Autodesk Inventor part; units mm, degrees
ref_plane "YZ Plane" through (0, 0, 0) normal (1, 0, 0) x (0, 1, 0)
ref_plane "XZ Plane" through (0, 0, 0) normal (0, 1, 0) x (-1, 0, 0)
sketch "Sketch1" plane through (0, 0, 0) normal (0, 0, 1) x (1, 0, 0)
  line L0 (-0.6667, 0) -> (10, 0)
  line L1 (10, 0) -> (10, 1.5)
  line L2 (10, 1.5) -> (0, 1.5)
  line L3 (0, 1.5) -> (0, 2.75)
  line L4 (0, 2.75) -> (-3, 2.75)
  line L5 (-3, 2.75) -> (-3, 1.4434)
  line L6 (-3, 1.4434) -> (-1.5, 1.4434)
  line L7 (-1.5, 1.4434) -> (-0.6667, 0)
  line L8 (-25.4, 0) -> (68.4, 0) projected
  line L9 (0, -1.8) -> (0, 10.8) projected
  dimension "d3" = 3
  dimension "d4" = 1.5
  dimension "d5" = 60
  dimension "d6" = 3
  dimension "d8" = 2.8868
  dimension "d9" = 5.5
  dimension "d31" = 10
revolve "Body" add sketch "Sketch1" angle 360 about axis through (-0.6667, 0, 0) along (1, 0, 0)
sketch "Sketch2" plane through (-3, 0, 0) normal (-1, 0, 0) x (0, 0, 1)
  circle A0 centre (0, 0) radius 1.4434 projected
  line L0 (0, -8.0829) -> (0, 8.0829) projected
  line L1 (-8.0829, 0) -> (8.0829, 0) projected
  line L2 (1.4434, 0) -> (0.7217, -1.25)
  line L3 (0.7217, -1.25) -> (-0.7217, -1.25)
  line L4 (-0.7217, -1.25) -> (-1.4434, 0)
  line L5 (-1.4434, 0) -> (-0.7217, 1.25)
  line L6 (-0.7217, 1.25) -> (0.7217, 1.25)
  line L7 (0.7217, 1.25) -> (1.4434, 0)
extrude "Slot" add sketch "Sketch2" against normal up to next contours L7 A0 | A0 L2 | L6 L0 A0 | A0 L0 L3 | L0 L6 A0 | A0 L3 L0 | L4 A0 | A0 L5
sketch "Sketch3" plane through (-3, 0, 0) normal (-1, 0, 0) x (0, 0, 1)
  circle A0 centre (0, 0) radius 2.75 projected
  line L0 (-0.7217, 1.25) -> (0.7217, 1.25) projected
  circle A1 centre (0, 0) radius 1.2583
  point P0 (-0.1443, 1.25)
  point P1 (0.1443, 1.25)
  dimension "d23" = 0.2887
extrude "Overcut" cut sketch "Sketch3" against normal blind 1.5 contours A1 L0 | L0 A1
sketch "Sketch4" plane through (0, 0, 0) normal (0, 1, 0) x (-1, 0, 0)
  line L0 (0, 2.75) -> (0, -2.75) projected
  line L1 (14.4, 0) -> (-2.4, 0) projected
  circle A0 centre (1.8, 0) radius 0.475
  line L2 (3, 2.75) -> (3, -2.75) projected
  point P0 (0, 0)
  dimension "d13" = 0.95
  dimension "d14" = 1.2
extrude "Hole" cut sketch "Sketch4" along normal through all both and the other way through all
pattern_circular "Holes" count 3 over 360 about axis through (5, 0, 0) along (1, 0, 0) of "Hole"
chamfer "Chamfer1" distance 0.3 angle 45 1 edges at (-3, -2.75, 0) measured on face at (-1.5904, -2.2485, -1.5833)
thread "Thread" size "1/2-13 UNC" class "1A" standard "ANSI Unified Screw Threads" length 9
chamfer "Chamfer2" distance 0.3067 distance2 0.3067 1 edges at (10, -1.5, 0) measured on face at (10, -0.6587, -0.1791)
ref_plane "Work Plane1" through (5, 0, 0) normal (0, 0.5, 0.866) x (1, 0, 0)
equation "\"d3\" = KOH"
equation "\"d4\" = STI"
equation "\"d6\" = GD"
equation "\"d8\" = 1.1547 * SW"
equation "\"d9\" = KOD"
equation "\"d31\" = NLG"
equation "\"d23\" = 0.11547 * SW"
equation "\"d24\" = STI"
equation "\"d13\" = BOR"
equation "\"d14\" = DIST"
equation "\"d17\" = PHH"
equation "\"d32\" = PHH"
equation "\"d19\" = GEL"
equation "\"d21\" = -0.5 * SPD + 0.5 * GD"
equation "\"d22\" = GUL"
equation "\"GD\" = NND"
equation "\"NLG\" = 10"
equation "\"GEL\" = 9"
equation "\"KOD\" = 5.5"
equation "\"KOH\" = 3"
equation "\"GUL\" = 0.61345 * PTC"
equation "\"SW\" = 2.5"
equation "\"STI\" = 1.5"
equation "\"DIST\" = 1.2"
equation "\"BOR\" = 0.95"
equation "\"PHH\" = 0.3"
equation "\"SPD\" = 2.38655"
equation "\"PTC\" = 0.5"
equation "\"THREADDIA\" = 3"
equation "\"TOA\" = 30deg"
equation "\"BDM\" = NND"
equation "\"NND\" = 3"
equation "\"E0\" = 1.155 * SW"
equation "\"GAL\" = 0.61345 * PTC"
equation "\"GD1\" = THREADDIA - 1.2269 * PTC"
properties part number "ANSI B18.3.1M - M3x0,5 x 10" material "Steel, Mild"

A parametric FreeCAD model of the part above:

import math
import FreeCAD as App
import Part
import Sketcher
Q = App.Units.Quantity


def edges_at(feature, points):
    """Names of the edges that pass closest to the given points."""
    edges = feature.Shape.Edges
    near = lambda p: min(range(len(edges)), key=lambda i: edges[i].distToShape(Part.Vertex(*p))[0])
    return sorted({f"Edge{near(p) + 1}" for p in points})


def add_polygon(sketch, points):
    """Adds a closed chain of lines whose ends are joined by coincident constraints."""
    first, n = sketch.GeometryCount, len(points)
    for a, b in zip(points, points[1:] + points[:1]):
        sketch.addGeometry(Part.LineSegment(App.Vector(*a, 0), App.Vector(*b, 0)), False)
    for i in range(n):
        sketch.addConstraint(Sketcher.Constraint("Coincident", first + i, 2, first + (i + 1) % n, 1))

doc = App.newDocument("Part")
body = doc.addObject("PartDesign::Body", "Body")

sketch1 = doc.addObject("Sketcher::SketchObject", "Sketch")
body.addObject(sketch1)
sketch1.AttachmentSupport = (doc.XY_Plane, [""])
sketch1.MapMode = "FlatFace"
add_polygon(sketch1, [(-1.5, 1.4434), (-0.6667, 0), (10, 0), (10, 1.5), (0, 1.5), (0, 2.75), (-3, 2.75), (-3, 1.4434)])
sketch1.addConstraint([
    Sketcher.Constraint("Horizontal", 1),
    Sketcher.Constraint("Vertical", 2),
    Sketcher.Constraint("Horizontal", 3),
    Sketcher.Constraint("Vertical", 4),
    Sketcher.Constraint("Horizontal", 5),
    Sketcher.Constraint("Vertical", 6),
    Sketcher.Constraint("Horizontal", 7),
    Sketcher.Constraint("PointOnObject", 0, 2, -1),
    Sketcher.Constraint("PointOnObject", 3, 2, -2),
    Sketcher.Constraint("Equal", 7, 2),
    Sketcher.Constraint("DistanceX", 3, 2, 3, 1, Q("10 mm")),
    Sketcher.Constraint("DistanceX", 5, 2, 5, 1, Q("3 mm")),
    Sketcher.Constraint("DistanceX", 7, 1, 7, 2, Q("1.5 mm")),
    Sketcher.Constraint("DistanceY", 4, 1, 4, 2, Q("1.25 mm")),
    Sketcher.Constraint("DistanceX", 1, 1, 1, 2, Q("10.6667 mm")),
    Sketcher.Constraint("DistanceY", 6, 2, 6, 1, Q("1.3066 mm")),
])
revolution = doc.addObject("PartDesign::Revolution", "Revolution")
body.addObject(revolution)
revolution.Profile = sketch1
revolution.ReferenceAxis = (sketch1, ["H_Axis"])
revolution.Angle = 360

sketch2 = doc.addObject("Sketcher::SketchObject", "Sketch001")
body.addObject(sketch2)
sketch2.AttachmentSupport = (doc.YZ_Plane, [""])
sketch2.MapMode = "FlatFace"
sketch2.AttachmentOffset = App.Placement(App.Vector(0, 0, -3), App.Rotation())
sketch2.addGeometry([
    Part.LineSegment(App.Vector(1.25, 0.7217, 0), App.Vector(0, 1.4434, 0)),
    Part.ArcOfCircle(Part.Circle(App.Vector(0, 0, 0), App.Vector(0, 0, 1), 1.4434), math.radians(30.000418), math.radians(90)),
    Part.ArcOfCircle(Part.Circle(App.Vector(0, 0, 0), App.Vector(0, 0, 1), 1.4434), math.radians(90), math.radians(149.999582)),
    Part.LineSegment(App.Vector(0, 1.4434, 0), App.Vector(-1.25, 0.7217, 0)),
    Part.ArcOfCircle(Part.Circle(App.Vector(0, 0, 0), App.Vector(0, 0, 1), 1.4434), math.radians(-30.000418), math.radians(30.000418)),
    Part.LineSegment(App.Vector(1.25, 0.7217, 0), App.Vector(1.25, -0.7217, 0)),
    Part.LineSegment(App.Vector(-1.25, 0.7217, 0), App.Vector(-1.25, -0.7217, 0)),
    Part.ArcOfCircle(Part.Circle(App.Vector(0, 0, 0), App.Vector(0, 0, 1), 1.4434), math.radians(149.999582), math.radians(210.000418)),
    Part.LineSegment(App.Vector(-1.25, -0.7217, 0), App.Vector(0, -1.4434, 0)),
    Part.ArcOfCircle(Part.Circle(App.Vector(0, 0, 0), App.Vector(0, 0, 1), 1.4434), math.radians(-149.999582), math.radians(-90)),
    Part.ArcOfCircle(Part.Circle(App.Vector(0, 0, 0), App.Vector(0, 0, 1), 1.4434), math.radians(-90), math.radians(-30.000418)),
    Part.LineSegment(App.Vector(0, -1.4434, 0), App.Vector(1.25, -0.7217, 0)),
], False)
sketch2.addConstraint([
    Sketcher.Constraint("Coincident", 0, 1, 1, 1),
    Sketcher.Constraint("Coincident", 1, 2, 0, 2),
    Sketcher.Constraint("Coincident", 2, 1, 3, 1),
    Sketcher.Constraint("Coincident", 3, 2, 2, 2),
    Sketcher.Constraint("Coincident", 4, 1, 5, 2),
    Sketcher.Constraint("Coincident", 5, 1, 4, 2),
    Sketcher.Constraint("Coincident", 6, 1, 7, 1),
    Sketcher.Constraint("Coincident", 7, 2, 6, 2),
    Sketcher.Constraint("Coincident", 8, 1, 9, 1),
    Sketcher.Constraint("Coincident", 9, 2, 8, 2),
    Sketcher.Constraint("Coincident", 10, 1, 11, 1),
    Sketcher.Constraint("Coincident", 11, 2, 10, 2),
    Sketcher.Constraint("Vertical", 5),
    Sketcher.Constraint("Vertical", 6),
    Sketcher.Constraint("Coincident", 1, 3, -1, 1),
    Sketcher.Constraint("Coincident", 2, 3, -1, 1),
    Sketcher.Constraint("Coincident", 4, 3, -1, 1),
    Sketcher.Constraint("Coincident", 7, 3, -1, 1),
    Sketcher.Constraint("Coincident", 9, 3, -1, 1),
    Sketcher.Constraint("Coincident", 10, 3, -1, 1),
    Sketcher.Constraint("Coincident", 2, 1, 1, 2),
    Sketcher.Constraint("Coincident", 5, 1, 0, 1),
    Sketcher.Constraint("Coincident", 6, 1, 3, 2),
    Sketcher.Constraint("Coincident", 8, 1, 7, 2),
    Sketcher.Constraint("Coincident", 10, 1, 9, 2),
    Sketcher.Constraint("PointOnObject", 1, 2, -2),
    Sketcher.Constraint("PointOnObject", 9, 2, -2),
    Sketcher.Constraint("Parallel", 0, 8),
    Sketcher.Constraint("Parallel", 3, 11),
    Sketcher.Constraint("Angle", 0, Q("149.9996 deg")),
    Sketcher.Constraint("Radius", 1, Q("1.4434 mm")),
])
pad1 = doc.addObject("PartDesign::Pad", "Pad")
body.addObject(pad1)
pad1.Profile = sketch2
pad1.Type = "UpToFirst"

sketch3 = doc.addObject("Sketcher::SketchObject", "Sketch002")
body.addObject(sketch3)
sketch3.AttachmentSupport = (doc.YZ_Plane, [""])
sketch3.MapMode = "FlatFace"
sketch3.AttachmentOffset = App.Placement(App.Vector(0, 0, -3), App.Rotation())
sketch3.addGeometry(Part.Circle(App.Vector(0, 0, 0), App.Vector(0, 0, 1), 1.2583), False)
sketch3.addConstraint([
    Sketcher.Constraint("Coincident", 0, 3, -1, 1),
    Sketcher.Constraint("Diameter", 0, Q("2.5166 mm")),
])
pocket1 = doc.addObject("PartDesign::Pocket", "Pocket")
body.addObject(pocket1)
pocket1.Profile = sketch3
pocket1.Length = 1.5
pocket1.Reversed = True

sketch4 = doc.addObject("Sketcher::SketchObject", "Sketch003")
body.addObject(sketch4)
sketch4.AttachmentSupport = (doc.XZ_Plane, [""])
sketch4.MapMode = "FlatFace"
sketch4.addGeometry(Part.Circle(App.Vector(-1.8, 0, 0), App.Vector(0, 0, 1), 0.475), False)
sketch4.addConstraint([
    Sketcher.Constraint("PointOnObject", 0, 3, -1),
    Sketcher.Constraint("Diameter", 0, Q("0.95 mm")),
    Sketcher.Constraint("DistanceX", 0, 3, -1, 1, Q("1.8 mm")),
])
pocket2 = doc.addObject("PartDesign::Pocket", "Pocket001")
body.addObject(pocket2)
pocket2.Profile = sketch4
pocket2.Type = "ThroughAll"
pocket2.Midplane = True
doc.recompute()

polarpattern = doc.addObject("PartDesign::PolarPattern", "PolarPattern")
body.addObject(polarpattern)
polarpattern.Originals = [pocket2]
polarpattern.Axis = (doc.X_Axis, [""])
polarpattern.Angle = 360
polarpattern.Occurrences = 3
body.Tip = polarpattern
doc.recompute()

chamfer = doc.addObject("PartDesign::Chamfer", "Chamfer")
body.addObject(chamfer)
chamfer.Base = (polarpattern, edges_at(polarpattern, [(-3, -2.75, 0)]))
chamfer.Size = 0.3
doc.recompute()

chamfer2 = doc.addObject("PartDesign::Chamfer", "Chamfer001")
body.addObject(chamfer2)
chamfer2.Base = (chamfer, edges_at(chamfer, [(10, -1.5, 0)]))
chamfer2.ChamferType = "Two distances"
chamfer2.Size = 0.3067
chamfer2.Size2 = 0.3067

doc.recompute()
